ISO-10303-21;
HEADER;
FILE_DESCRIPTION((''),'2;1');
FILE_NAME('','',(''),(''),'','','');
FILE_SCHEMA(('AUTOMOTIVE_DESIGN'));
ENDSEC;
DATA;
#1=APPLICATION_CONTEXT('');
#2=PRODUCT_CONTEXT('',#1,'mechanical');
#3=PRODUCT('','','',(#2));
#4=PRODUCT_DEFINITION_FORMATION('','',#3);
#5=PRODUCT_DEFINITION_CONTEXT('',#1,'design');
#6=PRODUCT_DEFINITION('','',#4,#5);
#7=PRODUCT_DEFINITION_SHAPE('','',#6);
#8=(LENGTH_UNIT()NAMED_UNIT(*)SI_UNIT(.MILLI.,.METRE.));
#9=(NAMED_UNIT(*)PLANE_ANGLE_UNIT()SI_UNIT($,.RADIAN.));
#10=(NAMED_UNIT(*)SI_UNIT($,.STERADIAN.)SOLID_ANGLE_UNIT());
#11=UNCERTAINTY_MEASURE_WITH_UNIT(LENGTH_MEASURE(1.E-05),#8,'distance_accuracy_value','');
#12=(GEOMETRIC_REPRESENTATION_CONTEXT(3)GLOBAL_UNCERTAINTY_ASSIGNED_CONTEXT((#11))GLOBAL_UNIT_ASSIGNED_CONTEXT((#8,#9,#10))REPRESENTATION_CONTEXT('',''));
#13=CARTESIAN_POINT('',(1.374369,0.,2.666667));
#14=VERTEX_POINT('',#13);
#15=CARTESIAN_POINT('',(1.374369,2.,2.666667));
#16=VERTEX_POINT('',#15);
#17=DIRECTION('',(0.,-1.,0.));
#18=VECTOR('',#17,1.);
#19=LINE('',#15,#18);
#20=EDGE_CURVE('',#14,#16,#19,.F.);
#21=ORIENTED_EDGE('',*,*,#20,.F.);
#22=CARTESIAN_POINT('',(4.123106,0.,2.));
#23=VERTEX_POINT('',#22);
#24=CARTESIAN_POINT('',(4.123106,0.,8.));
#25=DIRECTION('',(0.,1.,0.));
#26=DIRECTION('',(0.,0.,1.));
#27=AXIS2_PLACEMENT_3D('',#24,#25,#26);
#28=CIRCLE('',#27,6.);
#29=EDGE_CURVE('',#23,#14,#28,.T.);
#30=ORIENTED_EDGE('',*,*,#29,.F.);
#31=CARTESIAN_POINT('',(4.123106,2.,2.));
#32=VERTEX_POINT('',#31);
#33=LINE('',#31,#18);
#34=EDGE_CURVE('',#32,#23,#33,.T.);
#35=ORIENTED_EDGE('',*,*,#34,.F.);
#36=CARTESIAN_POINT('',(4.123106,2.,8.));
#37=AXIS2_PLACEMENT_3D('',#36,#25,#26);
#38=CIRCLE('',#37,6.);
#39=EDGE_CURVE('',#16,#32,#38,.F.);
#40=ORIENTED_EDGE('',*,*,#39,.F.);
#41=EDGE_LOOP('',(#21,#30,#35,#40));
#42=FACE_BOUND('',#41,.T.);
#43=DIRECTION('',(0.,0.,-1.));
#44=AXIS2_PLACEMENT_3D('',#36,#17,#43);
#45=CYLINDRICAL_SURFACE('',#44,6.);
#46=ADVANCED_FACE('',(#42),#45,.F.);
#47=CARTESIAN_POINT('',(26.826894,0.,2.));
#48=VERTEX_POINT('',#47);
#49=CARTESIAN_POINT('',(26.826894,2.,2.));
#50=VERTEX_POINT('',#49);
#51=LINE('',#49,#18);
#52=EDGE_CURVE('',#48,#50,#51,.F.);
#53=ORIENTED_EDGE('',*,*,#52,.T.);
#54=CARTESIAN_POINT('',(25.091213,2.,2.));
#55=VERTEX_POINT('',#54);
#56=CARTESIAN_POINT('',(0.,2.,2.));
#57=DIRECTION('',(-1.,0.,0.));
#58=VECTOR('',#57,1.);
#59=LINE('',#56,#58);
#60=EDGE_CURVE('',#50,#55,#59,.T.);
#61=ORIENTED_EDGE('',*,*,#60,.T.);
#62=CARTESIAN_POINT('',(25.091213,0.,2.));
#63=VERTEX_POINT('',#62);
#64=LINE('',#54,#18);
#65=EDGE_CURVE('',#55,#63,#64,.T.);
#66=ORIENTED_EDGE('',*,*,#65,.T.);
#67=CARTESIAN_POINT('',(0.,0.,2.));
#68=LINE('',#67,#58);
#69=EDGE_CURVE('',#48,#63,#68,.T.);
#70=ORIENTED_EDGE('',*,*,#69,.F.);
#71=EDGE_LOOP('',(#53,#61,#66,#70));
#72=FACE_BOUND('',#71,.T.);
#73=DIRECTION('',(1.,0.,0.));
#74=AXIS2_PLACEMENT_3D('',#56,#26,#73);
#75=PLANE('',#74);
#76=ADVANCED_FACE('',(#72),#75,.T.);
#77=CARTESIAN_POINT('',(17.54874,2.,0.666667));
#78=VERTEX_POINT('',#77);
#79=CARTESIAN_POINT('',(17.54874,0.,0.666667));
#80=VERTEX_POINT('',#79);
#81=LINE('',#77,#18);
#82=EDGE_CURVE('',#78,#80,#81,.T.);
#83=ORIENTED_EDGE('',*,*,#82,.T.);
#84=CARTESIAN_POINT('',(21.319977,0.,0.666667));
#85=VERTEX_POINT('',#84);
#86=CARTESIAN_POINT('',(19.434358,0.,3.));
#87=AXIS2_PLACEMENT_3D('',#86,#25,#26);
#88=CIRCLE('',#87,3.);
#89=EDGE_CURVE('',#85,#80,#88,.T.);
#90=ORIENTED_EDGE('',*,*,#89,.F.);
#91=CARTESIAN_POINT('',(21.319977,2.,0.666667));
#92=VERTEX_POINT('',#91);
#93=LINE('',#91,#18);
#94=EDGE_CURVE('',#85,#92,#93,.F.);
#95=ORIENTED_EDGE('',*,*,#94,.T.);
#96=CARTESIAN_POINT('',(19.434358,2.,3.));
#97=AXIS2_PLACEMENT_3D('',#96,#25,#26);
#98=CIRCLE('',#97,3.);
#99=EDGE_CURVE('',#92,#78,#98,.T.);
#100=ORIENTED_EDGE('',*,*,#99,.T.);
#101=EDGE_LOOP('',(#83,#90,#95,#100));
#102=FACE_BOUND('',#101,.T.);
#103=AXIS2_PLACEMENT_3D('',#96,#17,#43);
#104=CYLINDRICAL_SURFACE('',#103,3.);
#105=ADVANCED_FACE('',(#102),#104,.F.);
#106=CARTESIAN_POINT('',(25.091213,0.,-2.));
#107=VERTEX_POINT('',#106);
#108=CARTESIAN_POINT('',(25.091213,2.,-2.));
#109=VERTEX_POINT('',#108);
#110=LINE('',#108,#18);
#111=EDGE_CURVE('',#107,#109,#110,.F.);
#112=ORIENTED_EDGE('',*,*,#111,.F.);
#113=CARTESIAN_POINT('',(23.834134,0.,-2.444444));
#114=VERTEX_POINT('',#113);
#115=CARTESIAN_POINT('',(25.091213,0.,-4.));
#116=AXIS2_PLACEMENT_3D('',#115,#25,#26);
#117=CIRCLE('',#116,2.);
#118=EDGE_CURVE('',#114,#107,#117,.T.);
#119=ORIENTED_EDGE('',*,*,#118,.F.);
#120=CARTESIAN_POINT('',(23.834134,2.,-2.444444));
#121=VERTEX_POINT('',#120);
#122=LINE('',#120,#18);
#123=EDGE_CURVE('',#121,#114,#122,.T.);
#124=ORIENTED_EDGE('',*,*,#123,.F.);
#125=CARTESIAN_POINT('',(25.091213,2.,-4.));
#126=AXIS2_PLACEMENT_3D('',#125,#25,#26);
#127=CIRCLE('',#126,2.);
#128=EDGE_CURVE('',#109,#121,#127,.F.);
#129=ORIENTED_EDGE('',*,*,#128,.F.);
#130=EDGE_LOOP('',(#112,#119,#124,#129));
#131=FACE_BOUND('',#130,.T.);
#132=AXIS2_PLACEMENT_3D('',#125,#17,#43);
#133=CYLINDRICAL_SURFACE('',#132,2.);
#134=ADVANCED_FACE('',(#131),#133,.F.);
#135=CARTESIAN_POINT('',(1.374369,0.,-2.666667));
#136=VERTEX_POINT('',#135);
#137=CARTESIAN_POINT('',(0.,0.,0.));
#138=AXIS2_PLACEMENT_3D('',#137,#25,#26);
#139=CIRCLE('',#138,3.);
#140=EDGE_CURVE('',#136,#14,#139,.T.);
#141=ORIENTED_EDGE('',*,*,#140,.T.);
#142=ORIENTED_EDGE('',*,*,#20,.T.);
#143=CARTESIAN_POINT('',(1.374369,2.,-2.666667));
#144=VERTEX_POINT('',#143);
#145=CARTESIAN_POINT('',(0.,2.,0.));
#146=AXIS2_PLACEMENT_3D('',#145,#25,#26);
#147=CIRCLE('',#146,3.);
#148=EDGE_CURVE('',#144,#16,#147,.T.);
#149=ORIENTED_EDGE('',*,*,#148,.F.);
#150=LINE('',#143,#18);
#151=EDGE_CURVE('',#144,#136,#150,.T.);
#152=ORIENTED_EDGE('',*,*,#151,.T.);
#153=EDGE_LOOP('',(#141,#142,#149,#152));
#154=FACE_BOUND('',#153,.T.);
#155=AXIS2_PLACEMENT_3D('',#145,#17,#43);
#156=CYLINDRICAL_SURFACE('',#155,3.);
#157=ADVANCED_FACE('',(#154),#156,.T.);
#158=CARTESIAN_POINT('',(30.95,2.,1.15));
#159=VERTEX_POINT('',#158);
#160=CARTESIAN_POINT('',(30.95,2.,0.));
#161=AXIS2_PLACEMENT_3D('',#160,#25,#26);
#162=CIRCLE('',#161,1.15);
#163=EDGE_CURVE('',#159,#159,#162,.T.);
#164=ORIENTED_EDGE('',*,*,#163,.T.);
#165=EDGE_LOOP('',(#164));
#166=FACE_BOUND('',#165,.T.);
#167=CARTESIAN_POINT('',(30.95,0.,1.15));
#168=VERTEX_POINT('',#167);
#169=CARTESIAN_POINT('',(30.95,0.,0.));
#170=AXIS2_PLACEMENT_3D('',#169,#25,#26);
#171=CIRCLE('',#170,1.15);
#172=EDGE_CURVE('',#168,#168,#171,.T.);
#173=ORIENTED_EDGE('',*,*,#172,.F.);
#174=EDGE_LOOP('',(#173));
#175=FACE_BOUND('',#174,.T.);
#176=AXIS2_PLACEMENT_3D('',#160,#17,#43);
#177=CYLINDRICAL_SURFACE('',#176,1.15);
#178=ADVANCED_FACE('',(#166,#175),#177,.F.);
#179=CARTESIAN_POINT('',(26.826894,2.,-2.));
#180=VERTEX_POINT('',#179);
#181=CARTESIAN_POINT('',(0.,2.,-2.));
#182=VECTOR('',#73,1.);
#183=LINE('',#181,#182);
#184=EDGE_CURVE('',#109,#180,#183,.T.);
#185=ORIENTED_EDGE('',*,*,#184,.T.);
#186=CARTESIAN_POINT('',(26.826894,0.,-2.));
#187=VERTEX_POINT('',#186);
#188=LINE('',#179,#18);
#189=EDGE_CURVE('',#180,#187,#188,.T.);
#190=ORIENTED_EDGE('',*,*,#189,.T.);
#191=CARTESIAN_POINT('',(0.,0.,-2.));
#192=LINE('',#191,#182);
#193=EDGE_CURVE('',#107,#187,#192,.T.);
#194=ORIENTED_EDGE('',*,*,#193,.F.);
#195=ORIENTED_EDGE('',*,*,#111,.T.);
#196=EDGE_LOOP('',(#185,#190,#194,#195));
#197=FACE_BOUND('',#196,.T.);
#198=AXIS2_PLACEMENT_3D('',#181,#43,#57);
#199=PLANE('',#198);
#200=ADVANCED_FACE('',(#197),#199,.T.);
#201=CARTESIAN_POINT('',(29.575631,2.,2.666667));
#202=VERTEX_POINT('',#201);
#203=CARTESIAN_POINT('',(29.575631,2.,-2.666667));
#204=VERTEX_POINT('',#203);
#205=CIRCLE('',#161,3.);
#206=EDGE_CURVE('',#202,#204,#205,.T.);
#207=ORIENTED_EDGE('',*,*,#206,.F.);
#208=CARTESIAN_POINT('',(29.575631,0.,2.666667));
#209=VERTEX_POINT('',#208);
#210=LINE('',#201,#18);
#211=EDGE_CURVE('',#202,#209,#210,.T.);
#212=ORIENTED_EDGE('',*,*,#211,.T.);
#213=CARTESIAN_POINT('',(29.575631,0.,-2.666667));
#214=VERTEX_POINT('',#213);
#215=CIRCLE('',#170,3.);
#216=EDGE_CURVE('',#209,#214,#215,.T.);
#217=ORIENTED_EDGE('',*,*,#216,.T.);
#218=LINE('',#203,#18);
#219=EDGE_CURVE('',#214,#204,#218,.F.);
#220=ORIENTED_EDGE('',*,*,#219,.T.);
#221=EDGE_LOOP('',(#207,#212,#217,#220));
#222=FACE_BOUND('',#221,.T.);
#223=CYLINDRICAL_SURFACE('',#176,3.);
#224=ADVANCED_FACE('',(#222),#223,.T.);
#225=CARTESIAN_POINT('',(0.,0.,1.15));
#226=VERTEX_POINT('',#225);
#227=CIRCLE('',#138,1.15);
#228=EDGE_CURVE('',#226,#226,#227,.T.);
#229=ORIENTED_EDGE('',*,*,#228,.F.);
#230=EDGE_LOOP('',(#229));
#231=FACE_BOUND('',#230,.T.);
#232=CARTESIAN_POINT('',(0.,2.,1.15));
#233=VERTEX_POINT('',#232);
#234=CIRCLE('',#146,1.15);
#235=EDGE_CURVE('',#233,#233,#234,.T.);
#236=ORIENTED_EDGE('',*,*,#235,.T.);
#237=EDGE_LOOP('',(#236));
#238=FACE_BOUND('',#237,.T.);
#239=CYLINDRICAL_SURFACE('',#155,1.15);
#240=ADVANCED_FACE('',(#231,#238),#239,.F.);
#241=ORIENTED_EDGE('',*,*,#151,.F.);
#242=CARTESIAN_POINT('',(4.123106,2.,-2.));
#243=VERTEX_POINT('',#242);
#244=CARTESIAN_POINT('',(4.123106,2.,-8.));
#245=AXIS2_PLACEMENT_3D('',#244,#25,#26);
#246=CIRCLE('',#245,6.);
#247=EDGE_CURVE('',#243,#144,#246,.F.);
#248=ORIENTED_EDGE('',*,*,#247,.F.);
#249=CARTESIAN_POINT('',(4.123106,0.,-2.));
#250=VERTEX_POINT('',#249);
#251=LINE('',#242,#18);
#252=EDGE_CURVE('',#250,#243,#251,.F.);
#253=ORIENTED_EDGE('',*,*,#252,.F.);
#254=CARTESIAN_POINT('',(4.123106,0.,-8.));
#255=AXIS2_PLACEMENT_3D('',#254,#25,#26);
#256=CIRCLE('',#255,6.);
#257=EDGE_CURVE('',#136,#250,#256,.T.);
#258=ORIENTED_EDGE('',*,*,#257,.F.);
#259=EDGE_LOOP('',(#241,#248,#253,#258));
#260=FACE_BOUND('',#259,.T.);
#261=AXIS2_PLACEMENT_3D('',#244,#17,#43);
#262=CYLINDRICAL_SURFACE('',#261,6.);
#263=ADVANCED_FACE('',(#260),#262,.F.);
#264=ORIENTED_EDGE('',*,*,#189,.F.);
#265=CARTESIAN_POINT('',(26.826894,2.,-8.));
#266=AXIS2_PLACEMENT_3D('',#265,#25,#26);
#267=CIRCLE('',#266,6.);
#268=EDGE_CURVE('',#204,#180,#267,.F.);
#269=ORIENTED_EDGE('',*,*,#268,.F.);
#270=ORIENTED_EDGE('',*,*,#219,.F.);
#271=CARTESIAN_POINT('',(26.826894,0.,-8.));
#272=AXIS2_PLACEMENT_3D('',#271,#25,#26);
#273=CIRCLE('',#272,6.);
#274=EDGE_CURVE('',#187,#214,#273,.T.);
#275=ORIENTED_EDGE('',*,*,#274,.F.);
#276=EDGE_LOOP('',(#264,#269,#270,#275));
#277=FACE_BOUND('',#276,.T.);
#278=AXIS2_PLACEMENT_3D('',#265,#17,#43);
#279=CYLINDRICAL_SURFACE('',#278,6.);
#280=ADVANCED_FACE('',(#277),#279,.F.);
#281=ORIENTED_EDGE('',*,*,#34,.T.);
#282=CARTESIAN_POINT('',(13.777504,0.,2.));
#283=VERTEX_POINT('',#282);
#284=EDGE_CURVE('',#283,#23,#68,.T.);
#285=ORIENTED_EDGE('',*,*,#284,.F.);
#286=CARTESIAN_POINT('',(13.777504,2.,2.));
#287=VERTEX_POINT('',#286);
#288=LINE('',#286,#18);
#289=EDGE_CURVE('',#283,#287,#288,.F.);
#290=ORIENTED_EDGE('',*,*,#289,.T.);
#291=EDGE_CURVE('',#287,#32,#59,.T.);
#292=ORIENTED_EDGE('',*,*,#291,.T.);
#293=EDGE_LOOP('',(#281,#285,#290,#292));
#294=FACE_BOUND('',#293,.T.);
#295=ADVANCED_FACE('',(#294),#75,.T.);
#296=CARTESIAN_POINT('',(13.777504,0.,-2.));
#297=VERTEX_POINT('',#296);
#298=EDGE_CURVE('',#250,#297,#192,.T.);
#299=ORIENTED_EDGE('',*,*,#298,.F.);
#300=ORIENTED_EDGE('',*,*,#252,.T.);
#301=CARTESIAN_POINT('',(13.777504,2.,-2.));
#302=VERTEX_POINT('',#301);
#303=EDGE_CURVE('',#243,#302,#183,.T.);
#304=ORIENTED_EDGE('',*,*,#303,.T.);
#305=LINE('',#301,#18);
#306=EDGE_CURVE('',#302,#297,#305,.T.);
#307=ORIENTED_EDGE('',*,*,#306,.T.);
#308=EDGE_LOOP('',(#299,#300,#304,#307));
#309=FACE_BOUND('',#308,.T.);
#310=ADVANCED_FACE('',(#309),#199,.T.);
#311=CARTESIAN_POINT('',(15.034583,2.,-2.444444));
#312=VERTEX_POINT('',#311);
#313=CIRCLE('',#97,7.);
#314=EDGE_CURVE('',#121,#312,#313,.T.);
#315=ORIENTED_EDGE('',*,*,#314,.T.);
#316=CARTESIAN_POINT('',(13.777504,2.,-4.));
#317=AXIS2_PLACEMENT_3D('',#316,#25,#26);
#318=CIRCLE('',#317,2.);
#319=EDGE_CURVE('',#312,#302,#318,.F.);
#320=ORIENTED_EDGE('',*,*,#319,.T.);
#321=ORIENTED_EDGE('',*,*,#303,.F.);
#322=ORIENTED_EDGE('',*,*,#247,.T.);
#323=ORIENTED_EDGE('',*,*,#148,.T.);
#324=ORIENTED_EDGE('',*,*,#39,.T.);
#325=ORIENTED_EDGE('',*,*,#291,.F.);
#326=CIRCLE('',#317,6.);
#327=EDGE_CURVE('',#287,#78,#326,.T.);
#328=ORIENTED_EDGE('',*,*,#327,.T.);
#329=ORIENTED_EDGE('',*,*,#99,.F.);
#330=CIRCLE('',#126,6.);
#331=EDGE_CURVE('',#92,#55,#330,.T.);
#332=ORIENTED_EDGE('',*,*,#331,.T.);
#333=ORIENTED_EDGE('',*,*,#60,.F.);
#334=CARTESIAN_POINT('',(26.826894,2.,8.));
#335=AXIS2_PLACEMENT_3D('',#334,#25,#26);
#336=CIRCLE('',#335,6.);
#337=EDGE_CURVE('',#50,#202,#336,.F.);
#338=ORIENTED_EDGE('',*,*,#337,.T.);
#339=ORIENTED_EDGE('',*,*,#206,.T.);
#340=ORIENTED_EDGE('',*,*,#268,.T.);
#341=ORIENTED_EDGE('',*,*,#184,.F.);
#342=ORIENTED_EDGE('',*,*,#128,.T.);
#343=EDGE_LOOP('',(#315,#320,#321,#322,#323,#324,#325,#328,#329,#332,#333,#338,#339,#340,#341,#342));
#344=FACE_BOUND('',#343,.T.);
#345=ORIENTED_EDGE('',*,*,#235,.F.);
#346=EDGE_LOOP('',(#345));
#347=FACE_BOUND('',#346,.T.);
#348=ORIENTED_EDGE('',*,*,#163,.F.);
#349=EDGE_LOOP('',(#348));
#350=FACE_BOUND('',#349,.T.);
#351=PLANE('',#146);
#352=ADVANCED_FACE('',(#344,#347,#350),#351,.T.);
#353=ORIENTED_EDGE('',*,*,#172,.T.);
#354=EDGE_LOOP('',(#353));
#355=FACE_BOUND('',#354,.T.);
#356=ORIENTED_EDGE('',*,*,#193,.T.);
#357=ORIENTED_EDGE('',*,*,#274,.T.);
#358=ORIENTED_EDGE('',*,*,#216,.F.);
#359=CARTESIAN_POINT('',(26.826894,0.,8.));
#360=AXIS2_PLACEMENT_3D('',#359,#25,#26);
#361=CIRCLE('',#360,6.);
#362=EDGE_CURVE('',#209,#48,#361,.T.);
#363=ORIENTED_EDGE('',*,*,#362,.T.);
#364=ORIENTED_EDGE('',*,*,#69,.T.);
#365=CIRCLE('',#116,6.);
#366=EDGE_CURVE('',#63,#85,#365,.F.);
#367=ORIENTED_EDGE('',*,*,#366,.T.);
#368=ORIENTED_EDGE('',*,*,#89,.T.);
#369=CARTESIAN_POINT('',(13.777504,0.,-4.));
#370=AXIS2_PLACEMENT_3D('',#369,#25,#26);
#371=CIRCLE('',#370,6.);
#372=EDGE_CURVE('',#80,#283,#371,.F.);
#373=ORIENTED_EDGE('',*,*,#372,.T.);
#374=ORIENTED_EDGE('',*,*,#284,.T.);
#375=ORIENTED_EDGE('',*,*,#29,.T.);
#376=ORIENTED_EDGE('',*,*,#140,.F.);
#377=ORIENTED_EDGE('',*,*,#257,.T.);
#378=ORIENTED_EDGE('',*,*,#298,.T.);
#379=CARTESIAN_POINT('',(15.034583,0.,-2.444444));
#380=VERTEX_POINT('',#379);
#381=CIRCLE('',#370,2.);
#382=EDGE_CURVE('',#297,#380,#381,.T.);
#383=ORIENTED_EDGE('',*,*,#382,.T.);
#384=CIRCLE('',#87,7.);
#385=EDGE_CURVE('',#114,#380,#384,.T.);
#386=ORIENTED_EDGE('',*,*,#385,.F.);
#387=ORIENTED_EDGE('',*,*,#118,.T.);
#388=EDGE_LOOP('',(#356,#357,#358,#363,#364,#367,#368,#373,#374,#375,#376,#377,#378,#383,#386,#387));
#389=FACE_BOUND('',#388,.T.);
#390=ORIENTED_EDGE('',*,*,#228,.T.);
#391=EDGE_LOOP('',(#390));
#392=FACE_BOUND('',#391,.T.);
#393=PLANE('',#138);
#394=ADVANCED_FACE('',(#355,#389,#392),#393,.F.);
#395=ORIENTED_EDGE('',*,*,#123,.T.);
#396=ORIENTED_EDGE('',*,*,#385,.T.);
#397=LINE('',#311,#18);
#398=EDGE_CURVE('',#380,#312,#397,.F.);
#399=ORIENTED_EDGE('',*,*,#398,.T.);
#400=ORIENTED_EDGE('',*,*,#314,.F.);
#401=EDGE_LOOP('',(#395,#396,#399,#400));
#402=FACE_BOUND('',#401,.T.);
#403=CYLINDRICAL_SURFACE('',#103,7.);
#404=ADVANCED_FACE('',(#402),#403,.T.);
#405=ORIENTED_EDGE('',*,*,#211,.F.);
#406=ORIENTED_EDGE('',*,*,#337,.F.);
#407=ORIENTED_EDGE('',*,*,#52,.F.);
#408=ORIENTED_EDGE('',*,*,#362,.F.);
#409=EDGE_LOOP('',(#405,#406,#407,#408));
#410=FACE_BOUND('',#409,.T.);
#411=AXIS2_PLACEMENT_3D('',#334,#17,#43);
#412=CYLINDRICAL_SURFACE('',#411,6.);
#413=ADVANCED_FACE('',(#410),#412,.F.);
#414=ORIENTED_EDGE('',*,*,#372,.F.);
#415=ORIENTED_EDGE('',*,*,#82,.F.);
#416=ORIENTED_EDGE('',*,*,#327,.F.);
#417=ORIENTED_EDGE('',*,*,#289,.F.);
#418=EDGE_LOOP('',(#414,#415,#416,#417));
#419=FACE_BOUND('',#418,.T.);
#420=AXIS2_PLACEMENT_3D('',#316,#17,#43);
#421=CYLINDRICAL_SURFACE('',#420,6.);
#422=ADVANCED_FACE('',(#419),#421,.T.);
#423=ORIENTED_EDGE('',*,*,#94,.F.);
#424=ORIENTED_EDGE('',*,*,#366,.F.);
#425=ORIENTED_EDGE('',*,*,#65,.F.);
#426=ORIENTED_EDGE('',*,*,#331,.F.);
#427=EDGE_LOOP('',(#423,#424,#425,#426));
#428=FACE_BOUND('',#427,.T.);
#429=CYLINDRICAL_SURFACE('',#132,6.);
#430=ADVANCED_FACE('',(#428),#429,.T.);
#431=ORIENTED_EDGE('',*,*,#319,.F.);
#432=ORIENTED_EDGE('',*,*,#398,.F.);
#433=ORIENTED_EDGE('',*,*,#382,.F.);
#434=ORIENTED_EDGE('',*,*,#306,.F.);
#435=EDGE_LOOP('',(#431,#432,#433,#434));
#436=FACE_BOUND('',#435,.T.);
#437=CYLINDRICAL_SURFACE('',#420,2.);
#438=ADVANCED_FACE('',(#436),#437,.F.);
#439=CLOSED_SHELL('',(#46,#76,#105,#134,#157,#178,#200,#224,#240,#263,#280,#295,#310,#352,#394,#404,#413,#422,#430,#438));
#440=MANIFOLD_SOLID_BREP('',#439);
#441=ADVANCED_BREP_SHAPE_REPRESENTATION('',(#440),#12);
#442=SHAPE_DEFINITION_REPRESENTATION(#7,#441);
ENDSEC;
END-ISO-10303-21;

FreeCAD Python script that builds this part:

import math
import FreeCAD as App
import Part
import Sketcher


def edges_at(feature, points):
    """Names of the edges that pass closest to the given points."""
    edges = feature.Shape.Edges
    near = lambda p: min(range(len(edges)), key=lambda i: edges[i].distToShape(Part.Vertex(*p))[0])
    return sorted({f"Edge{near(p) + 1}" for p in points})

doc = App.newDocument("Part")
params = doc.addObject("Spreadsheet::Sheet", "Params")
for row, (alias, value) in enumerate([
    ("sketch1_radius", "3 mm"),
    ("sketch1_radius2", "7 mm"),
    ("sketch1_diameter", "2.3 mm"),
    ("pad1_length", "2 mm"),
    ("fillet_radius", "6 mm"),
    ("fillet2_radius", "6 mm"),
    ("fillet3_radius", "2 mm"),
], start=1):
    params.set(f"A{row}", alias)
    params.set(f"B{row}", "=" + value)
    params.setAlias(f"B{row}", alias)

body = doc.addObject("PartDesign::Body", "Body")

sketch1 = body.newObject("Sketcher::SketchObject", "Sketch")
sketch1.AttachmentSupport = (doc.getObject("XZ_Plane"), [""])
sketch1.MapMode = "FlatFace"
sketch1.addGeometry([
    Part.LineSegment(App.Vector(2.2, 2, 0), App.Vector(16.6, 2, 0)),
    Part.ArcOfCircle(Part.Circle(App.Vector(19.4, 3, 0), App.Vector(0, 0, 1), 3), math.radians(-161), math.radians(-19)),
    Part.LineSegment(App.Vector(22.3, 2, 0), App.Vector(28.7, 2, 0)),
    Part.ArcOfCircle(Part.Circle(App.Vector(30.9, 0, 0), App.Vector(0, 0, 1), 3), math.radians(-138), math.radians(138)),
    Part.LineSegment(App.Vector(28.7, -2, 0), App.Vector(24.3, -2, 0)),
    Part.ArcOfCircle(Part.Circle(App.Vector(19.4, 3, 0), App.Vector(0, 0, 1), 7), math.radians(-134), math.radians(-46)),
    Part.LineSegment(App.Vector(14.5, -2, 0), App.Vector(2.2, -2, 0)),
    Part.ArcOfCircle(Part.Circle(App.Vector(0, 0, 0), App.Vector(0, 0, 1), 3), math.radians(42), math.radians(318)),
    Part.Circle(App.Vector(0, 0, 0), App.Vector(0, 0, 1), 1.1),
    Part.Circle(App.Vector(30.9, 0, 0), App.Vector(0, 0, 1), 1.1),
], False)
sketch1.addConstraint([
    Sketcher.Constraint("Coincident", 0, 2, 1, 1),
    Sketcher.Constraint("Coincident", 1, 2, 2, 1),
    Sketcher.Constraint("Coincident", 2, 2, 3, 2),
    Sketcher.Constraint("Coincident", 3, 1, 4, 1),
    Sketcher.Constraint("Coincident", 4, 2, 5, 2),
    Sketcher.Constraint("Coincident", 5, 1, 6, 1),
    Sketcher.Constraint("Coincident", 6, 2, 7, 2),
    Sketcher.Constraint("Coincident", 7, 1, 0, 1),
    Sketcher.Constraint("Horizontal", 0),
    Sketcher.Constraint("Horizontal", 2),
    Sketcher.Constraint("Horizontal", 4),
    Sketcher.Constraint("Horizontal", 6),
    Sketcher.Constraint("Coincident", 7, 3, -1, 1),
    Sketcher.Constraint("Coincident", 8, 3, -1, 1),
    Sketcher.Constraint("Coincident", 5, 3, 1, 3),
    Sketcher.Constraint("Coincident", 9, 3, 3, 3),
    Sketcher.Constraint("Equal", 1, 3),
    Sketcher.Constraint("Equal", 3, 7),
    Sketcher.Constraint("Equal", 8, 9),
    Sketcher.Constraint("Symmetric", 2, 2, 3, 1, -1),
    Sketcher.Constraint("Horizontal", 0, 2, 1, 2),
    Sketcher.Constraint("Horizontal", 4, 2, 5, 1),
    Sketcher.Constraint("Radius", 1, 3.0),
    Sketcher.Constraint("Radius", 5, 7.0),
    Sketcher.Constraint("Diameter", 8, 2.3),
    Sketcher.Constraint("DistanceY", -1, 1, 1, 3, 3.0),
    Sketcher.Constraint("DistanceY", -1, 1, 0, 2, 2.0),
    Sketcher.Constraint("DistanceX", -1, 1, 3, 3, 30.95),
    Sketcher.Constraint("DistanceX", 6, 2, 6, 1, 12.299311),
])
sketch1.setExpression("Constraints[22]", "Params.sketch1_radius")
sketch1.setExpression("Constraints[23]", "Params.sketch1_radius2")
sketch1.setExpression("Constraints[24]", "Params.sketch1_diameter")
pad1 = body.newObject("PartDesign::Pad", "Pad")
pad1.Profile = sketch1
pad1.setExpression("Length", "Params.pad1_length")
pad1.Reversed = True
doc.recompute()

fillet = body.newObject("PartDesign::Fillet", "Fillet")
fillet.Base = (pad1, edges_at(pad1, [
    (2.236, 1, 2),
    (2.236, 1, -2),
    (28.714, 1, -2),
    (28.714, 1, 2),
]))
fillet.setExpression("Radius", "Params.fillet_radius")
doc.recompute()

fillet2 = body.newObject("PartDesign::Fillet", "Fillet001")
fillet2.Base = (fillet, edges_at(fillet, [(22.263, 1, 2), (16.606, 1, 2)]))
fillet2.setExpression("Radius", "Params.fillet2_radius")
doc.recompute()

fillet3 = body.newObject("PartDesign::Fillet", "Fillet002")
fillet3.Base = (fillet2, edges_at(fillet2, [(14.535, 1, -2), (24.333, 1, -2)]))
fillet3.setExpression("Radius", "Params.fillet3_radius")

doc.recompute()
